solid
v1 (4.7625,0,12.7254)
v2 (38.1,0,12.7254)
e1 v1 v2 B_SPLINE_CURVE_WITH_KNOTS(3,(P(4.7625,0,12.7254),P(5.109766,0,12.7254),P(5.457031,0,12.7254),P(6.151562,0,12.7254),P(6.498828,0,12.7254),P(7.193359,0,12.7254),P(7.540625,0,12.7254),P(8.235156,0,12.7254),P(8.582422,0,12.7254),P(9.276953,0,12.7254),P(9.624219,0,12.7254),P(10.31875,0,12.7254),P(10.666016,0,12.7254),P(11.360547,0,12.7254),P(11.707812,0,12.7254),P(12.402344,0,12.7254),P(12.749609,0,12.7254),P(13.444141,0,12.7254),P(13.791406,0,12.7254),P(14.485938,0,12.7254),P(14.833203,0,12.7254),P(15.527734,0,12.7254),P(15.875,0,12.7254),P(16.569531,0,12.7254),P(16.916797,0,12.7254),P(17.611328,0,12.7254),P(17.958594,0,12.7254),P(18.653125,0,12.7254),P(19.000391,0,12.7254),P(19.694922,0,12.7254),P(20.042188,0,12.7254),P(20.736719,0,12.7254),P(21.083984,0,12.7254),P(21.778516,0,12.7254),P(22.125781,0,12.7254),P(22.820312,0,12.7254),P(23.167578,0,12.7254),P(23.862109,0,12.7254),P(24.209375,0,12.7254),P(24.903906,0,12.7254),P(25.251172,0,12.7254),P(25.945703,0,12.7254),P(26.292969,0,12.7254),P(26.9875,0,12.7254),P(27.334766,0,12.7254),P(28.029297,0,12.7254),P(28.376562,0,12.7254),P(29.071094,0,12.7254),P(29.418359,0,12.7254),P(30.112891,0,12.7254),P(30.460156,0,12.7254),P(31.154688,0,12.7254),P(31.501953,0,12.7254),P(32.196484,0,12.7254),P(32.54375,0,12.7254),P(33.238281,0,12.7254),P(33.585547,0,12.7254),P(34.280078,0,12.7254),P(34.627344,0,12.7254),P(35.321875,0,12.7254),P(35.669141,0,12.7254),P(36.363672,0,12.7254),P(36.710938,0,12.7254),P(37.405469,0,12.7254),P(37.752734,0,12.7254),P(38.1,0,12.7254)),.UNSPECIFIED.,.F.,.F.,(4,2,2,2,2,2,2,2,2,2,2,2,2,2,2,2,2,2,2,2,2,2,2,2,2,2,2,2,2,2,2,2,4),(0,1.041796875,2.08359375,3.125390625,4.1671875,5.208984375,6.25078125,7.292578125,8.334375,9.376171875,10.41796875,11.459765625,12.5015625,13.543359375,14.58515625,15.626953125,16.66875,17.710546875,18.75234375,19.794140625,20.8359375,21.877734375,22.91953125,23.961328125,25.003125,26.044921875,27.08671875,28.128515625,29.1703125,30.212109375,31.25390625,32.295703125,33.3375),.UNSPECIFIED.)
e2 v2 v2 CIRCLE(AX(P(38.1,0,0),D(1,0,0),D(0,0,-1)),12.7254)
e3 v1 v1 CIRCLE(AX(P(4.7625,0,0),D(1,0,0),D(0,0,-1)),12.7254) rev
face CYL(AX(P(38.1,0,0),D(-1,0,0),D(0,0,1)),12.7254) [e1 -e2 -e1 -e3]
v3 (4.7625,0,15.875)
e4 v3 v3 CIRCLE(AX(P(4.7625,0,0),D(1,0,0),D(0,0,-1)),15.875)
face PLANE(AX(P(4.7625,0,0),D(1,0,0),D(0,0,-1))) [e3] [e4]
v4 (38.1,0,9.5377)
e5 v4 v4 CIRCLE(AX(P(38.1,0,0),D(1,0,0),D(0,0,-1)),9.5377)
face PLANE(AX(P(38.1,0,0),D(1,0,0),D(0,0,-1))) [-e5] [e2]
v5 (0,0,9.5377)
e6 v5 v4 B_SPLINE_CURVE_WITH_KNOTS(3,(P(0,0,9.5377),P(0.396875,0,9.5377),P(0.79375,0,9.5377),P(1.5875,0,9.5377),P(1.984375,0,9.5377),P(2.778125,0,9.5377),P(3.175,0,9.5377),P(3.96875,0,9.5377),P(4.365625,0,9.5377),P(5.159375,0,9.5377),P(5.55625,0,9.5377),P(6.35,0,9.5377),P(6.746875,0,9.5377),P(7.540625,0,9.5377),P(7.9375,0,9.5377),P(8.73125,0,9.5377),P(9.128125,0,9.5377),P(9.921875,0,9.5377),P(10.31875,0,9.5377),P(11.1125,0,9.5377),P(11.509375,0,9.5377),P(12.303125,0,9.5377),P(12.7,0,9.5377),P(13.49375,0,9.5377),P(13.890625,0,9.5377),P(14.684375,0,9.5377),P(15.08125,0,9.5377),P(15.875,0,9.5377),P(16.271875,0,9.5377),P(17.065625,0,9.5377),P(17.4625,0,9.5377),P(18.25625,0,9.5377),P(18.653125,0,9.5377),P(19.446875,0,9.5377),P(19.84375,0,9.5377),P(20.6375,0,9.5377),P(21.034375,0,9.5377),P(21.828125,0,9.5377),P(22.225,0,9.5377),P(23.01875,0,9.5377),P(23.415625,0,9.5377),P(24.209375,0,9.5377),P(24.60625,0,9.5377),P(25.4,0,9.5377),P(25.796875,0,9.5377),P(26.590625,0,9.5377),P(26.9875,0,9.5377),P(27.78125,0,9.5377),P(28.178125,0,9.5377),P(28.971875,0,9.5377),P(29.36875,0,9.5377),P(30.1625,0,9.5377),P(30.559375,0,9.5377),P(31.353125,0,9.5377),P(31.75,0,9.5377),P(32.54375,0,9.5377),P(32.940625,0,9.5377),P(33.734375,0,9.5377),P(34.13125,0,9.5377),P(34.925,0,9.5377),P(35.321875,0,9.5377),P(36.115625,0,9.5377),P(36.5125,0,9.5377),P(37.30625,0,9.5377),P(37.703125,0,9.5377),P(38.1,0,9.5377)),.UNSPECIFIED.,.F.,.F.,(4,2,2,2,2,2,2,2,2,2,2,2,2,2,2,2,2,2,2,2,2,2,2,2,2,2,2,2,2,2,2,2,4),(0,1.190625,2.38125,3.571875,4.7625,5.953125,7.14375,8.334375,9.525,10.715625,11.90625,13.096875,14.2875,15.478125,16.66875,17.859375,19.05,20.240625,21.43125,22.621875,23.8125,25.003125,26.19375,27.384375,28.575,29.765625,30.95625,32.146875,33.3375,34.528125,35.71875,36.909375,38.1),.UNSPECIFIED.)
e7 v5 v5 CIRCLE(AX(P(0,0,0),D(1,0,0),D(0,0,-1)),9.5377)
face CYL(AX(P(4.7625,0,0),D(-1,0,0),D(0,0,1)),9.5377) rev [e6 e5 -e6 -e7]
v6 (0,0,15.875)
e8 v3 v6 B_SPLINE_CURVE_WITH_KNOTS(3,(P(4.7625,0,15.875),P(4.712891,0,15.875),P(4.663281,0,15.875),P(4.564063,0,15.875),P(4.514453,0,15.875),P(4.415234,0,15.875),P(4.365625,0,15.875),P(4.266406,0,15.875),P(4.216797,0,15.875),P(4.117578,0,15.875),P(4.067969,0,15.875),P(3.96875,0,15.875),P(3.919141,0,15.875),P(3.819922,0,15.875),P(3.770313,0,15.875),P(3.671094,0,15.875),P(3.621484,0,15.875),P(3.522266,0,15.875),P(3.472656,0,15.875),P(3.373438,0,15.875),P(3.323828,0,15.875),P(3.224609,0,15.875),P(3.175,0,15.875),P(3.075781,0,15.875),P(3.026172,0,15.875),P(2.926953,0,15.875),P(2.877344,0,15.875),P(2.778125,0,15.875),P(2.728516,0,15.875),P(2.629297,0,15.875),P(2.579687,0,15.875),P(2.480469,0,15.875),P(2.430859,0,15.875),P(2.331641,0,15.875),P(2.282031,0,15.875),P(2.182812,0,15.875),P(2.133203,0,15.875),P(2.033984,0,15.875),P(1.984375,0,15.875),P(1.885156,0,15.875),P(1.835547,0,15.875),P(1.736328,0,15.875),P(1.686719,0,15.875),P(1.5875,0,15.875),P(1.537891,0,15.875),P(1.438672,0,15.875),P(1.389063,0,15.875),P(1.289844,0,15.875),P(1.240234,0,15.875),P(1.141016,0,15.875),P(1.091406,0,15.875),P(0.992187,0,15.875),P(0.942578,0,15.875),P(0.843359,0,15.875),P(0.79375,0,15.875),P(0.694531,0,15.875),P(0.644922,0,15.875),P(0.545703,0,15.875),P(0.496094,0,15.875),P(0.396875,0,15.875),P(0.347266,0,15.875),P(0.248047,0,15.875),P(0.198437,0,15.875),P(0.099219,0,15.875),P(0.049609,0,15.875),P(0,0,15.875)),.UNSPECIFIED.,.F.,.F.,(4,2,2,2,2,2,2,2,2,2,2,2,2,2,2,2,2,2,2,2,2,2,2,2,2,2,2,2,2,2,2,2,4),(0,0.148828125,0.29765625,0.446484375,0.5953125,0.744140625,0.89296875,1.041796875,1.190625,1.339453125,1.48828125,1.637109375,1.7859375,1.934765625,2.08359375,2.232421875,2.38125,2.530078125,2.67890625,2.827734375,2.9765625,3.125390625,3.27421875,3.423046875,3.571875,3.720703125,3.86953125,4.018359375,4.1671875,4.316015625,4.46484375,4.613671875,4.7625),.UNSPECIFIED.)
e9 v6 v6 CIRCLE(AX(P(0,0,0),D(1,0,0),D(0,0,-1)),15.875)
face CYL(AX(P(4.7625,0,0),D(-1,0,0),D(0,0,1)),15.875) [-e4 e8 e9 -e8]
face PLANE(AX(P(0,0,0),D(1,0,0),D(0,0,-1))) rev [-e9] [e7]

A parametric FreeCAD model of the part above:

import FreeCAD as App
import Part
import Sketcher
from FreeCAD import Vector
Q = App.Units.Quantity

doc = App.newDocument("Part")
body = doc.addObject("PartDesign::Body", "Body")

# Sketch on YZ plane
sketch1 = doc.addObject("Sketcher::SketchObject", "Sketch")
body.addObject(sketch1)
sketch1.AttachmentSupport = (doc.YZ_Plane, [""])
sketch1.MapMode = "FlatFace"
sketch1.addGeometry([
    Part.Circle(Vector(0, 0, 0), Vector(0, 0, 1), 16),
    Part.Circle(Vector(0, 0, 0), Vector(0, 0, 1), 10),
], False)
sketch1.addConstraint([
    Sketcher.Constraint("Coincident", 0, 3, -1, 1),
    Sketcher.Constraint("Coincident", 1, 3, -1, 1),
    Sketcher.Constraint("Diameter", 0, Q("1.25 in")),
    Sketcher.Constraint("Diameter", 1, Q("0.751 in")),
])
pad1 = doc.addObject("PartDesign::Pad", "Pad")
body.addObject(pad1)
pad1.Profile = sketch1
pad1.Length = Q("0.1875 in")

# Sketch on YZ plane
sketch2 = doc.addObject("Sketcher::SketchObject", "Sketch001")
body.addObject(sketch2)
sketch2.AttachmentSupport = (doc.YZ_Plane, [""])
sketch2.MapMode = "FlatFace"
sketch2.addGeometry([
    Part.Circle(Vector(0, 0, 0), Vector(0, 0, 1), 13),
    Part.Circle(Vector(0, 0, 0), Vector(0, 0, 1), 10),
], False)
sketch2.addConstraint([
    Sketcher.Constraint("Coincident", 0, 3, -1, 1),
    Sketcher.Constraint("Coincident", 1, 3, -1, 1),
    Sketcher.Constraint("Diameter", 0, Q("1.002 in")),
    Sketcher.Constraint("Diameter", 1, Q("0.751 in")),
])
pad2 = doc.addObject("PartDesign::Pad", "Pad001")
body.addObject(pad2)
pad2.Profile = sketch2
pad2.Length = Q("1.5 in")

doc.recompute()
